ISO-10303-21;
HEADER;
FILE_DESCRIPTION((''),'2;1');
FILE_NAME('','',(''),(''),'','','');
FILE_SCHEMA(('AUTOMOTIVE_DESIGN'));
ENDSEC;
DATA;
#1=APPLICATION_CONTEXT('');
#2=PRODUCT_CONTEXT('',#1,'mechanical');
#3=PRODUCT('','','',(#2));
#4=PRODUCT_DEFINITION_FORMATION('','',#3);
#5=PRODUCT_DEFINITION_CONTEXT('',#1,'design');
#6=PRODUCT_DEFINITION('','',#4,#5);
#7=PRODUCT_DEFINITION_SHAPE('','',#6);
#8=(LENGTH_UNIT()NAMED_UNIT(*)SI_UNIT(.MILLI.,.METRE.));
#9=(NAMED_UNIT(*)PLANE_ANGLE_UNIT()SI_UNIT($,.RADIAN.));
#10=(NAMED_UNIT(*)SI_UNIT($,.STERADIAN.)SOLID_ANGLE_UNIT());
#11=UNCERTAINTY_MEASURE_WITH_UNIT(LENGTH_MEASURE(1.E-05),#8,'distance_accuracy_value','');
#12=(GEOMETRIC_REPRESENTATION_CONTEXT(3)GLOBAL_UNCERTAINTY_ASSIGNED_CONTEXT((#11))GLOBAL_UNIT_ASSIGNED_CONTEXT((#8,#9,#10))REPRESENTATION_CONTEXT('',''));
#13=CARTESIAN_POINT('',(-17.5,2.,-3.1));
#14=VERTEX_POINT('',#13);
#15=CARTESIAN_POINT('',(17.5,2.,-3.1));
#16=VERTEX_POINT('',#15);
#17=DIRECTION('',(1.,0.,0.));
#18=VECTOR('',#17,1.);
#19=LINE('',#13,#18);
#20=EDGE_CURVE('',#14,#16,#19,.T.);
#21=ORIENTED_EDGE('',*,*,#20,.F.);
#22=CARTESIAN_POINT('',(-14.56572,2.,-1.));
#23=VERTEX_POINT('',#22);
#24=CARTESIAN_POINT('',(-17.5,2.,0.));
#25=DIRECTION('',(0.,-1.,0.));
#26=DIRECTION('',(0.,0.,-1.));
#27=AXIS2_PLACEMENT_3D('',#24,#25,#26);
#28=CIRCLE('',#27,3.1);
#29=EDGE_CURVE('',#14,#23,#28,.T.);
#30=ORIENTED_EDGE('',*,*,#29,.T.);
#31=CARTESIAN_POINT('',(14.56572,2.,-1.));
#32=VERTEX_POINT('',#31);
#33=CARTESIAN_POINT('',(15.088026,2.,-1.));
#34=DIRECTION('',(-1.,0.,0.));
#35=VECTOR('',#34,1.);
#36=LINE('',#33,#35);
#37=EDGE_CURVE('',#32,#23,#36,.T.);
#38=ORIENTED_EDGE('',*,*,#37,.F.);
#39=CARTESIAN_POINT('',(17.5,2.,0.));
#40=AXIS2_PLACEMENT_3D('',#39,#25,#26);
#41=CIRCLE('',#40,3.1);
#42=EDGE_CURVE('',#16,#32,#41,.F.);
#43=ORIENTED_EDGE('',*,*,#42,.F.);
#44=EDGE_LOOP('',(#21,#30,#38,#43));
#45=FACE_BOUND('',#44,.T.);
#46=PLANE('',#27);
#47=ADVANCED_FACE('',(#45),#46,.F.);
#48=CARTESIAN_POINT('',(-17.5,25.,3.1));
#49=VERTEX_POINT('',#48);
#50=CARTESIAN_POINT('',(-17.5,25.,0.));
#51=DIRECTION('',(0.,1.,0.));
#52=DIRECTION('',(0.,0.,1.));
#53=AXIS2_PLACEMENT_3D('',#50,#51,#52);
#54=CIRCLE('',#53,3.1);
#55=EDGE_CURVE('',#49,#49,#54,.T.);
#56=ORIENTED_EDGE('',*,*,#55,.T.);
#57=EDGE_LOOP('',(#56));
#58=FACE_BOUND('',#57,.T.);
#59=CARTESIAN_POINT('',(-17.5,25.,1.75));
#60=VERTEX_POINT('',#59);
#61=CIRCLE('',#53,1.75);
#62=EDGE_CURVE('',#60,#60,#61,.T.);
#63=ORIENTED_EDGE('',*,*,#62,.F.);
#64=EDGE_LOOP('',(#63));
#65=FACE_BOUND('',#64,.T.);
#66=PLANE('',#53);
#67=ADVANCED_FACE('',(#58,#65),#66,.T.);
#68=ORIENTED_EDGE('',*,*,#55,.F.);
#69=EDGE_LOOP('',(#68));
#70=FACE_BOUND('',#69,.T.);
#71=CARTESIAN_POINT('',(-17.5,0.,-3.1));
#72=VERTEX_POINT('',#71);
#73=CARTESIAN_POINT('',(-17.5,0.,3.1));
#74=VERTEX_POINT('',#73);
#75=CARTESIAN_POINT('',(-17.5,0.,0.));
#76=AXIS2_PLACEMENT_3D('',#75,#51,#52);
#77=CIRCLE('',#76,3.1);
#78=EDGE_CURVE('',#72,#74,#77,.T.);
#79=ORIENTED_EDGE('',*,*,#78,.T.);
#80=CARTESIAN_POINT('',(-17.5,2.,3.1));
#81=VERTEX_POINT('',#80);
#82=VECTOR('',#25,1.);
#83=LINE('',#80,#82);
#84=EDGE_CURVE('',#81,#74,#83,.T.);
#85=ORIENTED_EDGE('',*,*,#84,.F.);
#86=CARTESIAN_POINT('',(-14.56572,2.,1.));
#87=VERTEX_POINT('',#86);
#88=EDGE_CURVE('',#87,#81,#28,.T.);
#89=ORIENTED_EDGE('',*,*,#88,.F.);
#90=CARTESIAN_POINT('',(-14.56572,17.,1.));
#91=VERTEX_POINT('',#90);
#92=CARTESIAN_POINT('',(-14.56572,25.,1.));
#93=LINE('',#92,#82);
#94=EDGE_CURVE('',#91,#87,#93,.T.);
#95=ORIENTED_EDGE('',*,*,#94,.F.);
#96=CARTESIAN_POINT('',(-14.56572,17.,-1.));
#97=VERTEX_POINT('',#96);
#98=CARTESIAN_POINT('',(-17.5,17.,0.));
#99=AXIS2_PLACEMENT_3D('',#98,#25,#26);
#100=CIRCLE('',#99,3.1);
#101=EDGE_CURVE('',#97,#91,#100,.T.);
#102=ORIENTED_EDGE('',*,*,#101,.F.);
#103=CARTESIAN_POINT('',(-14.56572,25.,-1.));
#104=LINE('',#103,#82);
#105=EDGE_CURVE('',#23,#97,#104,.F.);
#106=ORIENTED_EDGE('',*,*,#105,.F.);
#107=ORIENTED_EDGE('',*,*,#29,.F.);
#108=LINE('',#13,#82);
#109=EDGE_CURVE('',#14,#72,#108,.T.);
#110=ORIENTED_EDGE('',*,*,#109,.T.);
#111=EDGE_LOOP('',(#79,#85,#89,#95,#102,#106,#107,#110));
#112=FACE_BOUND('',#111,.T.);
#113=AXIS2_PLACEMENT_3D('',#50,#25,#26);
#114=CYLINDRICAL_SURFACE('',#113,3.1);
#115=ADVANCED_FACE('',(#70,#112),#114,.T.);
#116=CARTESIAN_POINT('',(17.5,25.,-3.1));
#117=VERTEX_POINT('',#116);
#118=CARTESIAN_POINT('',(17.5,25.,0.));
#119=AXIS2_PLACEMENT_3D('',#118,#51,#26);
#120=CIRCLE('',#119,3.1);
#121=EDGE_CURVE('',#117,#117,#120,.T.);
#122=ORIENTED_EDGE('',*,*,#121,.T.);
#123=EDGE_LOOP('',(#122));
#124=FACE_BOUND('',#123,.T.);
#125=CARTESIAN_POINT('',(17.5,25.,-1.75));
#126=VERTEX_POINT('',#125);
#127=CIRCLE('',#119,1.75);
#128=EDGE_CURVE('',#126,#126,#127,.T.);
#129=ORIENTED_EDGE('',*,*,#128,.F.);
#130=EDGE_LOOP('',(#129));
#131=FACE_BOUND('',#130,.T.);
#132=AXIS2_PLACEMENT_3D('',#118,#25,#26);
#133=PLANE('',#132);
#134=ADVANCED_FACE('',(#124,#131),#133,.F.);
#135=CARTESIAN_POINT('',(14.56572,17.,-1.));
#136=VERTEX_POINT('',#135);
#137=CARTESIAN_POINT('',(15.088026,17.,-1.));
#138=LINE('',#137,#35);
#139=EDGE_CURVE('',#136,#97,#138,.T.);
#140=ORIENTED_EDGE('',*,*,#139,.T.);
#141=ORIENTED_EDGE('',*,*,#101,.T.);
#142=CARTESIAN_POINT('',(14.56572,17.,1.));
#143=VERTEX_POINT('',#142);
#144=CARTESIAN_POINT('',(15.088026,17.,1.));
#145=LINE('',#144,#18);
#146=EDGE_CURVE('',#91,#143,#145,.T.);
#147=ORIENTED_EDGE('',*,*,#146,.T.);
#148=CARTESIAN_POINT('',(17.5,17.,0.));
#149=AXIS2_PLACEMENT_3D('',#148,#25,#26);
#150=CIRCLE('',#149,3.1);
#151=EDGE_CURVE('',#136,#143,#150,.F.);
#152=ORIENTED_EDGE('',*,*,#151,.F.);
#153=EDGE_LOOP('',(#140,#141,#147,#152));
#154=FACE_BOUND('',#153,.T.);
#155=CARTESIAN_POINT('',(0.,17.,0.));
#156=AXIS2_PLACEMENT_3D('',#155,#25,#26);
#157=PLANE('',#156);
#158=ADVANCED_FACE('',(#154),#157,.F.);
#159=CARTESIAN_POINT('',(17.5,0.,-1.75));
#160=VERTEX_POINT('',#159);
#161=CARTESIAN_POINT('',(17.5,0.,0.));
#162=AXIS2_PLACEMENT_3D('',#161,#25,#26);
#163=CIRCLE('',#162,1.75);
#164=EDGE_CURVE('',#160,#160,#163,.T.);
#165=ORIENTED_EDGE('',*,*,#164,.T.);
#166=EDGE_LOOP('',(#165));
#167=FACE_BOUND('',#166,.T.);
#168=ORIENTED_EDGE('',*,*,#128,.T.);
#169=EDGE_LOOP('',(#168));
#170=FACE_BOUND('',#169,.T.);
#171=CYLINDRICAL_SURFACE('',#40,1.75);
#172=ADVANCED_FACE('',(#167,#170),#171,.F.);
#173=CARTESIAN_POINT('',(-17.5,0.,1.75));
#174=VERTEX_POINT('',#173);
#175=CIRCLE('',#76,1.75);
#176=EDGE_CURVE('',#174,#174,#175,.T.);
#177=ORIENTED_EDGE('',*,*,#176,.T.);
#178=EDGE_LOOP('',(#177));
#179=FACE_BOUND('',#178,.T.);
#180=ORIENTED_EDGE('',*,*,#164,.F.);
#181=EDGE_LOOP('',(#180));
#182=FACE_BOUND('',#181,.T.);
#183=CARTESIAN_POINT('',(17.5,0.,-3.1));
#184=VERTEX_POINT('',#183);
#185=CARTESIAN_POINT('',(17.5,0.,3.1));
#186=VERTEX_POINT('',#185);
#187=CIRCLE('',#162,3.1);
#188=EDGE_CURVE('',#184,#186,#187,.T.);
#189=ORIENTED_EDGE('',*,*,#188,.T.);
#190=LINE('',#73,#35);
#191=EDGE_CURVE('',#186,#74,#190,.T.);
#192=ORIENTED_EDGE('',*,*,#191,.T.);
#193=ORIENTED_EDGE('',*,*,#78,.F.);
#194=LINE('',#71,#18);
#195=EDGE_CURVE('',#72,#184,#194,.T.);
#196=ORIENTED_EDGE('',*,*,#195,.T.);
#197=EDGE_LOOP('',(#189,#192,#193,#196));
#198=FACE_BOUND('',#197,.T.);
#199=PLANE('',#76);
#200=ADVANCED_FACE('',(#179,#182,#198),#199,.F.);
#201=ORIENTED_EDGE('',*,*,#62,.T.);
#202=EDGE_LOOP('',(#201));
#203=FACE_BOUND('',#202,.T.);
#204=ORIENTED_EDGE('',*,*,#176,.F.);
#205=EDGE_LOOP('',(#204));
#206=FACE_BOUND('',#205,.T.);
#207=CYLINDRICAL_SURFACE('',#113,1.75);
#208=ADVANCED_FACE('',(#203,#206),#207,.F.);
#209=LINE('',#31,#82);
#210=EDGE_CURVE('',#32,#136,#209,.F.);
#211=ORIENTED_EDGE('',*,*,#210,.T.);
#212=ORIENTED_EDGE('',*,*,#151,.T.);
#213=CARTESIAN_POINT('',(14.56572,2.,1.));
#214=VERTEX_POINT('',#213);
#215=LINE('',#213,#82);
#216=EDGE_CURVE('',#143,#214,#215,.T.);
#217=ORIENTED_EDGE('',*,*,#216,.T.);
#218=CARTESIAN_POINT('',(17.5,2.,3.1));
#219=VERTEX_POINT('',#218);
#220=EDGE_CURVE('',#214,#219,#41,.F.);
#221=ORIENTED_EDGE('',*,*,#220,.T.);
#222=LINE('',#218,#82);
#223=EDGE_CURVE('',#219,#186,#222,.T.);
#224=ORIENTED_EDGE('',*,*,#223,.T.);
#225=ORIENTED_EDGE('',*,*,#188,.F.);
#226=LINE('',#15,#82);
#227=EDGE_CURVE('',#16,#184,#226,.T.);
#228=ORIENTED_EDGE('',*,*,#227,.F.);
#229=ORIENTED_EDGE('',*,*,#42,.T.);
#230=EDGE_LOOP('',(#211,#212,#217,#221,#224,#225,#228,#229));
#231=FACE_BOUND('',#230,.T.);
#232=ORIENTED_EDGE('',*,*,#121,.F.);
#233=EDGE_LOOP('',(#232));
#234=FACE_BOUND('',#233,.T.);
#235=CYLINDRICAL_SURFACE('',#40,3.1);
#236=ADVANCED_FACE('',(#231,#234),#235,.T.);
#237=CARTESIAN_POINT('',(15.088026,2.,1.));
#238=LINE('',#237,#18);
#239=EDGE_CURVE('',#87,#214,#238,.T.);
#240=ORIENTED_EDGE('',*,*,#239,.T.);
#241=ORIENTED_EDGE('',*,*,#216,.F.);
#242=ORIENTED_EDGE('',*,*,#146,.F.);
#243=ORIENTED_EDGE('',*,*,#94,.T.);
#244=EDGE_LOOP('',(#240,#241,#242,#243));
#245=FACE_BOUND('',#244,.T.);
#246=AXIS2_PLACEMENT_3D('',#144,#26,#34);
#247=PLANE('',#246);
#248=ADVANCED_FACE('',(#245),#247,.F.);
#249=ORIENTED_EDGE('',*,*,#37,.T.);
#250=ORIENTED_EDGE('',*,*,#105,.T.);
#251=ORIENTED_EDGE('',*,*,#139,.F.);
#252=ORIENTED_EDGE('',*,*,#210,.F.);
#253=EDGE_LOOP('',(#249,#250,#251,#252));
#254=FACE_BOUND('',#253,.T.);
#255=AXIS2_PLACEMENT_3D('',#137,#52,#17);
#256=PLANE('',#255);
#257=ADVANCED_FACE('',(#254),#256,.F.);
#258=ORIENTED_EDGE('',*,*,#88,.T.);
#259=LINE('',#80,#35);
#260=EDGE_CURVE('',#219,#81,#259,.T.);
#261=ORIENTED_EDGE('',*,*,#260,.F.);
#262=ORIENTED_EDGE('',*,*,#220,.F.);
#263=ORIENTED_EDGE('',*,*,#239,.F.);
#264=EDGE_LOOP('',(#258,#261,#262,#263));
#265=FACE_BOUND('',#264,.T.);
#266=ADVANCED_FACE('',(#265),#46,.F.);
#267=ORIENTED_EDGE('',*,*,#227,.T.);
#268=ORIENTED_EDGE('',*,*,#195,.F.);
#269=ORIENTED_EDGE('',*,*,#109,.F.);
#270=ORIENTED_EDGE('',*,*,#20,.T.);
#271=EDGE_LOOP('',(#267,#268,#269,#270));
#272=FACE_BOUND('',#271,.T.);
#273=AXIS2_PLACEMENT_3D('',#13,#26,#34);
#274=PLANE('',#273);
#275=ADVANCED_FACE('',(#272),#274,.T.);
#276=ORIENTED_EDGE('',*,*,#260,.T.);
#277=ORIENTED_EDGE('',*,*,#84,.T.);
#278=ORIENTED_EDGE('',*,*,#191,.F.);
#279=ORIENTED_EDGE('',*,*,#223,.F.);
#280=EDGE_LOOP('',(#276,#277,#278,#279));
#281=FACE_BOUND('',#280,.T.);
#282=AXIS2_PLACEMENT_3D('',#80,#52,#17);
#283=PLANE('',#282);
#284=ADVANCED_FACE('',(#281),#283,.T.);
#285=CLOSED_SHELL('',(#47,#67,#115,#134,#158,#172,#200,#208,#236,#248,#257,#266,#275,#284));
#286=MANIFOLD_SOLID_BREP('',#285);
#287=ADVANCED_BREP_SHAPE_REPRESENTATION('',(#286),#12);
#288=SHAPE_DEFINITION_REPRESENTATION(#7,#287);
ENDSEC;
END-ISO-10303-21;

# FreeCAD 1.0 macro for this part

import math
import FreeCAD as App
import Part
import Sketcher
Q = App.Units.Quantity


def add_polygon(sketch, points):
    """Adds a closed chain of lines whose ends are joined by coincident constraints."""
    first, n = sketch.GeometryCount, len(points)
    for a, b in zip(points, points[1:] + points[:1]):
        sketch.addGeometry(Part.LineSegment(App.Vector(*a, 0), App.Vector(*b, 0)), False)
    for i in range(n):
        sketch.addConstraint(Sketcher.Constraint("Coincident", first + i, 2, first + (i + 1) % n, 1))

doc = App.newDocument("Part")
body = doc.addObject("PartDesign::Body", "Body")

sketch1 = body.newObject("Sketcher::SketchObject", "Sketch")
sketch1.AttachmentSupport = (doc.getObject("XZ_Plane"), [""])
sketch1.MapMode = "FlatFace"
sketch1.addGeometry([
    Part.Circle(App.Vector(-17.5, 0, 0), App.Vector(0, 0, 1), 3.1),
    Part.Circle(App.Vector(-17.5, 0, 0), App.Vector(0, 0, 1), 1.8),
], False)
sketch1.addConstraint([
    Sketcher.Constraint("Coincident", 1, 3, 0, 3),
    Sketcher.Constraint("PointOnObject", 0, 3, -1),
    Sketcher.Constraint("Diameter", 0, Q("6.2 mm")),
    Sketcher.Constraint("Diameter", 1, Q("3.5 mm")),
    Sketcher.Constraint("DistanceX", 0, 3, -1, 1, Q("17.5 mm")),
])
pad1 = body.newObject("PartDesign::Pad", "Pad")
pad1.Profile = sketch1
pad1.Length = 25
pad1.Reversed = True
body2 = doc.addObject("PartDesign::Body", "Body001")

sketch2 = body2.newObject("Sketcher::SketchObject", "Sketch001")
sketch2.AttachmentSupport = (doc.getObject("XZ_Plane001"), [""])
sketch2.MapMode = "FlatFace"
sketch2.addGeometry([
    Part.Circle(App.Vector(17.5, 0, 0), App.Vector(0, 0, 1), 3.1),
    Part.Circle(App.Vector(17.5, 0, 0), App.Vector(0, 0, 1), 1.8),
], False)
sketch2.addConstraint([
    Sketcher.Constraint("Coincident", 1, 3, 0, 3),
    Sketcher.Constraint("PointOnObject", 0, 3, -1),
    Sketcher.Constraint("Diameter", 0, Q("6.2 mm")),
    Sketcher.Constraint("Diameter", 1, Q("3.5 mm")),
    Sketcher.Constraint("DistanceX", -1, 1, 0, 3, Q("17.5 mm")),
])
pad2 = body2.newObject("PartDesign::Pad", "Pad001")
pad2.Profile = sketch2
pad2.Length = 25
pad2.Reversed = True
body.AllowCompound = True
doc.recompute()

boolean = body.newObject("PartDesign::Boolean", "Boolean")
boolean.Type = "Fuse"
boolean.addObjects([body2])

sketch3 = body.newObject("Sketcher::SketchObject", "Sketch002")
sketch3.AttachmentSupport = (doc.getObject("XZ_Plane"), [""])
sketch3.MapMode = "FlatFace"
sketch3.addGeometry([
    Part.LineSegment(App.Vector(17.5, 3.1, 0), App.Vector(-17.5, 3.1, 0)),
    Part.ArcOfCircle(Part.Circle(App.Vector(-17.5, 0, 0), App.Vector(0, 0, 1), 3.1), math.radians(90), math.radians(270)),
    Part.LineSegment(App.Vector(-17.5, -3.1, 0), App.Vector(17.5, -3.1, 0)),
    Part.ArcOfCircle(Part.Circle(App.Vector(17.5, 0, 0), App.Vector(0, 0, 1), 3.1), math.radians(-90), math.radians(90)),
    Part.Circle(App.Vector(17.5, 0, 0), App.Vector(0, 0, 1), 1.8),
    Part.Circle(App.Vector(-17.5, 0, 0), App.Vector(0, 0, 1), 1.8),
], False)
sketch3.addConstraint([
    Sketcher.Constraint("Tangent", 0, 2, 1, 1),
    Sketcher.Constraint("Tangent", 1, 2, 2, 1),
    Sketcher.Constraint("Tangent", 2, 2, 3, 1),
    Sketcher.Constraint("Tangent", 3, 2, 0, 1),
    Sketcher.Constraint("Horizontal", 0),
    Sketcher.Constraint("Horizontal", 2),
    Sketcher.Constraint("Coincident", 4, 3, 3, 3),
    Sketcher.Constraint("Coincident", 5, 3, 1, 3),
    Sketcher.Constraint("Equal", 4, 5),
    Sketcher.Constraint("Symmetric", 1, 3, 3, 3, -1, 1),
    Sketcher.Constraint("Diameter", 4, Q("3.5 mm")),
    Sketcher.Constraint("Radius", 1, Q("3.1 mm")),
    Sketcher.Constraint("DistanceX", 0, 2, 0, 1, Q("35 mm")),
])
pad3 = body.newObject("PartDesign::Pad", "Pad002")
pad3.Profile = sketch3
pad3.Length = 2
pad3.Reversed = True

sketch4 = body.newObject("Sketcher::SketchObject", "Sketch003")
sketch4.AttachmentSupport = (doc.getObject("XZ_Plane"), [""])
sketch4.MapMode = "FlatFace"
sketch4.AttachmentOffset = App.Placement(App.Vector(0, 0, -2), App.Rotation())
add_polygon(sketch4, [(-15.1, -1), (-15.1, 1), (15.1, 1), (15.1, -1)])
sketch4.addConstraint([
    Sketcher.Constraint("Vertical", 0),
    Sketcher.Constraint("Horizontal", 1),
    Sketcher.Constraint("Vertical", 2),
    Sketcher.Constraint("Horizontal", 3),
    Sketcher.Constraint("Symmetric", 0, 2, 2, 2, -1, 1),
    Sketcher.Constraint("DistanceY", 0, 1, 0, 2, Q("2 mm")),
    Sketcher.Constraint("DistanceX", 1, 1, 1, 2, Q("30.176052 mm")),
])
pad4 = body.newObject("PartDesign::Pad", "Pad003")
pad4.Profile = sketch4
pad4.Length = 15
pad4.Reversed = True

doc.recompute()
